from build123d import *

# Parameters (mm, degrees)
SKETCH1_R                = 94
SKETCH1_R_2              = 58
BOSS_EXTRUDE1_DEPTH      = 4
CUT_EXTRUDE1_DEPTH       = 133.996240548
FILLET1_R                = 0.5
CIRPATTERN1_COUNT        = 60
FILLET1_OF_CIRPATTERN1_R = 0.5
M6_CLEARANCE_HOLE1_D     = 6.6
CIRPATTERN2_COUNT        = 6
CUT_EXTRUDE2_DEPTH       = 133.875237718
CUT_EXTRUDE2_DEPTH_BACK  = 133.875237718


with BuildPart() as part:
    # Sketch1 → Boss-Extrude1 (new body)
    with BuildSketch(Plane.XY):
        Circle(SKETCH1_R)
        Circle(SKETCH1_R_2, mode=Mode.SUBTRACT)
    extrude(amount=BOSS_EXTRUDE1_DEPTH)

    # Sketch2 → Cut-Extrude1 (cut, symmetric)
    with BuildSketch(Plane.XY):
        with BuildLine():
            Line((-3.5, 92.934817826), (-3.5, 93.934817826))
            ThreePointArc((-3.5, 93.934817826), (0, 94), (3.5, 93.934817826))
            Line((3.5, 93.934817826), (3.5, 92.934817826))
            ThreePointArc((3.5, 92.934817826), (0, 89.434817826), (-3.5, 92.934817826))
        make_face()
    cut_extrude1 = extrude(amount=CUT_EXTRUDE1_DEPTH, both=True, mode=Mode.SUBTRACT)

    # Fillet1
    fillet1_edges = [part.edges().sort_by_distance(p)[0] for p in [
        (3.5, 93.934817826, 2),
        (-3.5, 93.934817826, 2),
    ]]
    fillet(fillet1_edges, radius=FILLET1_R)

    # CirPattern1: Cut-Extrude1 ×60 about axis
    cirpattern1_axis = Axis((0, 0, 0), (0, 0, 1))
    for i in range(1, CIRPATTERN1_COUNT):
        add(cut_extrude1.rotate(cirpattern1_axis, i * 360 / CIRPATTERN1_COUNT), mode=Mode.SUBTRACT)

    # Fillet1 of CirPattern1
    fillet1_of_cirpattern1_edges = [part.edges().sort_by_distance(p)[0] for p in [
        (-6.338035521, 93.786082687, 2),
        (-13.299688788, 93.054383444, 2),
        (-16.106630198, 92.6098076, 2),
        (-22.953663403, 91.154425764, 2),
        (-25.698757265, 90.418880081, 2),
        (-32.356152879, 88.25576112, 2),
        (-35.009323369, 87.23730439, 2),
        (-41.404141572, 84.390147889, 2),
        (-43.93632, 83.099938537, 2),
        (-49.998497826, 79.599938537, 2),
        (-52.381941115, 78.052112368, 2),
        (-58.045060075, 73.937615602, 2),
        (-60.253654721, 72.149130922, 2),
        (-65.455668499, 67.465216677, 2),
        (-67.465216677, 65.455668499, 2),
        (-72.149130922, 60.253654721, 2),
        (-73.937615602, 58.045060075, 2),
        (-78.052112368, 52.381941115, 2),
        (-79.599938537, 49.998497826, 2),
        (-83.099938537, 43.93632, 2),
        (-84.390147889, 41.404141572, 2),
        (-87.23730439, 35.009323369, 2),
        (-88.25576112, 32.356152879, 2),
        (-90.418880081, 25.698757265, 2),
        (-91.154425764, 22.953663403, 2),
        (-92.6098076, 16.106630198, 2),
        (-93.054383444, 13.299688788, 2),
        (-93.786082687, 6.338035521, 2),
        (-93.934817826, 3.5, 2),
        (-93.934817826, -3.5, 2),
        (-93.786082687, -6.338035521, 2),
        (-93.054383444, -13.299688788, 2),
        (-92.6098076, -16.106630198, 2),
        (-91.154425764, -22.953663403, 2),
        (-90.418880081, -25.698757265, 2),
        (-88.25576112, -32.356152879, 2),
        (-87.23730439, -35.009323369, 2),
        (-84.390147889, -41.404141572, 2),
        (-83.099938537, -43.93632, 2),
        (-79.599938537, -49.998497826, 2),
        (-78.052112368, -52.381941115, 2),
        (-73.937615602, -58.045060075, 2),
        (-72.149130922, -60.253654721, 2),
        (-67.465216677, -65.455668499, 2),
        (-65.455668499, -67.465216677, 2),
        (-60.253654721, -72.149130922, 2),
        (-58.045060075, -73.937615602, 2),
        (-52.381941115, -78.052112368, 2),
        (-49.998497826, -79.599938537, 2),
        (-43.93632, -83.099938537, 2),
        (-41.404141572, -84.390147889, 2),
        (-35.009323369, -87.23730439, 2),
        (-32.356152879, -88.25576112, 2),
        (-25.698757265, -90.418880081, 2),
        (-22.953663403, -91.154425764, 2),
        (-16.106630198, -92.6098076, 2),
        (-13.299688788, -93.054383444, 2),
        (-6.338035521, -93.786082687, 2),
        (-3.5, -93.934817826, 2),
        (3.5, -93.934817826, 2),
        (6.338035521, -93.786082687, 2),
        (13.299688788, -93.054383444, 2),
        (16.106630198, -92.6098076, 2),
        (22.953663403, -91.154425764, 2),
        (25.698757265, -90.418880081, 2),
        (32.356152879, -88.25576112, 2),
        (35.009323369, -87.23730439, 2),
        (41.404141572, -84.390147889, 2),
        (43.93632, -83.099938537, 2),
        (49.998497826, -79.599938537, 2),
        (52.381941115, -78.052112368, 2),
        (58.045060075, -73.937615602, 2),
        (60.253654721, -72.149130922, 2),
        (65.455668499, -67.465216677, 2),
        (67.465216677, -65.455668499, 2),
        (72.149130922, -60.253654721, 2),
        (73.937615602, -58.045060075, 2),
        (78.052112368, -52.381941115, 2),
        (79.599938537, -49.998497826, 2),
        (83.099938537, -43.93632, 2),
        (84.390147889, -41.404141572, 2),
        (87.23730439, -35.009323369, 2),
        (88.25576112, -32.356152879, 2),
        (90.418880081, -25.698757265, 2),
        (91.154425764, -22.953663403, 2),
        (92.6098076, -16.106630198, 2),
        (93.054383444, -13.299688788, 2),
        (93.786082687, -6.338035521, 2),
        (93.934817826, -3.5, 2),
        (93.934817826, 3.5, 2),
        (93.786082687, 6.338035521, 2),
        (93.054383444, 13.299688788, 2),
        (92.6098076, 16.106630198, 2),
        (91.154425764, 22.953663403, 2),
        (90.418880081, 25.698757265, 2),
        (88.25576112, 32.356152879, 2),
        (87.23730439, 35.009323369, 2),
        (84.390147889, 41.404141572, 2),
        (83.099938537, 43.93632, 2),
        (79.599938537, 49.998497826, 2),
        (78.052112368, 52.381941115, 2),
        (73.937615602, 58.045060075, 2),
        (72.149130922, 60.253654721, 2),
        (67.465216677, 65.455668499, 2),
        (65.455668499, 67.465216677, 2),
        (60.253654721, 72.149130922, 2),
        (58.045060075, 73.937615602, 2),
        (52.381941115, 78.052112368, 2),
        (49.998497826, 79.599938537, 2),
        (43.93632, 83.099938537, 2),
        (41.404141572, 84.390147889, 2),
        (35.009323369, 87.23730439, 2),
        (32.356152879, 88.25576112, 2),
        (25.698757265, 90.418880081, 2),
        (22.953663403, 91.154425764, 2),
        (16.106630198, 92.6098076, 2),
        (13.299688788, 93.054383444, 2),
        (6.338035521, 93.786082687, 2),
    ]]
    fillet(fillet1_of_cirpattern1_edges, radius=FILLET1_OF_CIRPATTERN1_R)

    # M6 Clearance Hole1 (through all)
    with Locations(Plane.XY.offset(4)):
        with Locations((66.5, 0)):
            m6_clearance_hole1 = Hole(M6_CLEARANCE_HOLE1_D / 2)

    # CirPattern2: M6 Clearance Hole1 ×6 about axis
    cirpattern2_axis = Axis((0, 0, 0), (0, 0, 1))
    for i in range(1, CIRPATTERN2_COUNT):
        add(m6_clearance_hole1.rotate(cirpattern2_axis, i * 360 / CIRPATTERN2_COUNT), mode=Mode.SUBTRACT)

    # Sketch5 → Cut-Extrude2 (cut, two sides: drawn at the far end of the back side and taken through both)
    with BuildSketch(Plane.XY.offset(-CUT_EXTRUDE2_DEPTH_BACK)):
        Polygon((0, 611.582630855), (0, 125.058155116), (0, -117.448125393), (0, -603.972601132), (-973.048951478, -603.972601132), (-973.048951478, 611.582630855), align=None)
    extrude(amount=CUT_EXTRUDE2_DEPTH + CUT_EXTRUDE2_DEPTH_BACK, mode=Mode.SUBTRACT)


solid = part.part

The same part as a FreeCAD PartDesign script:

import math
import FreeCAD as App
import Part
import Sketcher
from FreeCAD import Vector
Q = App.Units.Quantity


def edges_at(feature, points):
    """Names of the edges that pass closest to the given points."""
    edges = feature.Shape.Edges
    near = lambda p: min(range(len(edges)), key=lambda i: edges[i].distToShape(Part.Vertex(*p))[0])
    return sorted({f"Edge{near(p) + 1}" for p in points})

doc = App.newDocument("Part")
body = doc.addObject("PartDesign::Body", "Body")

# Sketch on XY plane
sketch1 = body.newObject("Sketcher::SketchObject", "Sketch")
sketch1.AttachmentSupport = (doc.getObject("XY_Plane"), [""])
sketch1.MapMode = "FlatFace"
sketch1.addGeometry([
    Part.Circle(Vector(0, 0, 0), Vector(0, 0, 1), 94),
    Part.Circle(Vector(0, 0, 0), Vector(0, 0, 1), 58),
], False)
sketch1.addConstraint([
    Sketcher.Constraint("Coincident", 0, 3, -1, 1),
    Sketcher.Constraint("Coincident", 1, 3, -1, 1),
    Sketcher.Constraint("Diameter", 0, Q("188 mm")),
    Sketcher.Constraint("Diameter", 1, Q("116 mm")),
])
pad1 = body.newObject("PartDesign::Pad", "Pad")
pad1.Profile = sketch1
pad1.Length = 4

# Sketch on XY plane
sketch2 = body.newObject("Sketcher::SketchObject", "Sketch001")
sketch2.AttachmentSupport = (doc.getObject("XY_Plane"), [""])
sketch2.MapMode = "FlatFace"
sketch2.addGeometry([
    Part.LineSegment(Vector(-3.5, 93.934818, 0), Vector(-3.5, 92.934818, 0)),
    Part.ArcOfCircle(Part.Circle(Vector(0, 92.934818, 0), Vector(0, 0, 1), 3.5), math.radians(180), math.radians(360)),
    Part.LineSegment(Vector(3.5, 92.934818, 0), Vector(3.5, 93.934818, 0)),
    Part.ArcOfCircle(Part.Circle(Vector(0, 0, 0), Vector(0, 0, 1), 94), math.radians(87.866153), math.radians(92.133847)),
], False)
sketch2.addConstraint([
    Sketcher.Constraint("Tangent", 0, 2, 1, 1),
    Sketcher.Constraint("Tangent", 1, 2, 2, 1),
    Sketcher.Constraint("Coincident", 2, 2, 3, 1),
    Sketcher.Constraint("Coincident", 3, 2, 0, 1),
    Sketcher.Constraint("Vertical", 0),
    Sketcher.Constraint("Vertical", 2),
    Sketcher.Constraint("Coincident", 3, 3, -1, 1),
    Sketcher.Constraint("PointOnObject", 1, 3, -2),
    Sketcher.Constraint("Radius", 3, Q("94 mm")),
    Sketcher.Constraint("Radius", 1, Q("3.5 mm")),
    Sketcher.Constraint("DistanceY", 0, 2, 0, 1, Q("1 mm")),
])
pocket1 = body.newObject("PartDesign::Pocket", "Pocket")
pocket1.Profile = sketch2
pocket1.Length = 267.992481
pocket1.Midplane = True
doc.recompute()

fillet = body.newObject("PartDesign::Fillet", "Fillet")
fillet.Base = (pocket1, edges_at(pocket1, [(3.5, 93.935, 2), (-3.5, 93.935, 2)]))
fillet.Radius = 0.5
doc.recompute()

polarpattern = body.newObject("PartDesign::PolarPattern", "PolarPattern")
polarpattern.Originals = [pocket1]
polarpattern.Axis = (doc.getObject("Z_Axis"), [""])
polarpattern.Angle = 360
polarpattern.Occurrences = 60
body.Tip = polarpattern
doc.recompute()

fillet2 = body.newObject("PartDesign::Fillet", "Fillet001")
fillet2.Base = (polarpattern, edges_at(polarpattern, [
    (-6.338, 93.786, 2),
    (-13.3, 93.054, 2),
    (-16.107, 92.61, 2),
    (-22.954, 91.154, 2),
    (-25.699, 90.419, 2),
    (-32.356, 88.256, 2),
    (-35.009, 87.237, 2),
    (-41.404, 84.39, 2),
    (-43.936, 83.1, 2),
    (-49.998, 79.6, 2),
    (-52.382, 78.052, 2),
    (-58.045, 73.938, 2),
    (-60.254, 72.149, 2),
    (-65.456, 67.465, 2),
    (-67.465, 65.456, 2),
    (-72.149, 60.254, 2),
    (-73.938, 58.045, 2),
    (-78.052, 52.382, 2),
    (-79.6, 49.998, 2),
    (-83.1, 43.936, 2),
    (-84.39, 41.404, 2),
    (-87.237, 35.009, 2),
    (-88.256, 32.356, 2),
    (-90.419, 25.699, 2),
    (-91.154, 22.954, 2),
    (-92.61, 16.107, 2),
    (-93.054, 13.3, 2),
    (-93.786, 6.338, 2),
    (-93.935, 3.5, 2),
    (-93.935, -3.5, 2),
    (-93.786, -6.338, 2),
    (-93.054, -13.3, 2),
    (-92.61, -16.107, 2),
    (-91.154, -22.954, 2),
    (-90.419, -25.699, 2),
    (-88.256, -32.356, 2),
    (-87.237, -35.009, 2),
    (-84.39, -41.404, 2),
    (-83.1, -43.936, 2),
    (-79.6, -49.998, 2),
    (-78.052, -52.382, 2),
    (-73.938, -58.045, 2),
    (-72.149, -60.254, 2),
    (-67.465, -65.456, 2),
    (-65.456, -67.465, 2),
    (-60.254, -72.149, 2),
    (-58.045, -73.938, 2),
    (-52.382, -78.052, 2),
    (-49.998, -79.6, 2),
    (-43.936, -83.1, 2),
    (-41.404, -84.39, 2),
    (-35.009, -87.237, 2),
    (-32.356, -88.256, 2),
    (-25.699, -90.419, 2),
    (-22.954, -91.154, 2),
    (-16.107, -92.61, 2),
    (-13.3, -93.054, 2),
    (-6.338, -93.786, 2),
    (-3.5, -93.935, 2),
    (3.5, -93.935, 2),
    (6.338, -93.786, 2),
    (13.3, -93.054, 2),
    (16.107, -92.61, 2),
    (22.954, -91.154, 2),
    (25.699, -90.419, 2),
    (32.356, -88.256, 2),
    (35.009, -87.237, 2),
    (41.404, -84.39, 2),
    (43.936, -83.1, 2),
    (49.998, -79.6, 2),
    (52.382, -78.052, 2),
    (58.045, -73.938, 2),
    (60.254, -72.149, 2),
    (65.456, -67.465, 2),
    (67.465, -65.456, 2),
    (72.149, -60.254, 2),
    (73.938, -58.045, 2),
    (78.052, -52.382, 2),
    (79.6, -49.998, 2),
    (83.1, -43.936, 2),
    (84.39, -41.404, 2),
    (87.237, -35.009, 2),
    (88.256, -32.356, 2),
    (90.419, -25.699, 2),
    (91.154, -22.954, 2),
    (92.61, -16.107, 2),
    (93.054, -13.3, 2),
    (93.786, -6.338, 2),
    (93.935, -3.5, 2),
    (93.935, 3.5, 2),
    (93.786, 6.338, 2),
    (93.054, 13.3, 2),
    (92.61, 16.107, 2),
    (91.154, 22.954, 2),
    (90.419, 25.699, 2),
    (88.256, 32.356, 2),
    (87.237, 35.009, 2),
    (84.39, 41.404, 2),
    (83.1, 43.936, 2),
    (79.6, 49.998, 2),
    (78.052, 52.382, 2),
    (73.938, 58.045, 2),
    (72.149, 60.254, 2),
    (67.465, 65.456, 2),
    (65.456, 67.465, 2),
    (60.254, 72.149, 2),
    (58.045, 73.938, 2),
    (52.382, 78.052, 2),
    (49.998, 79.6, 2),
    (43.936, 83.1, 2),
    (41.404, 84.39, 2),
    (35.009, 87.237, 2),
    (32.356, 88.256, 2),
    (25.699, 90.419, 2),
    (22.954, 91.154, 2),
    (16.107, 92.61, 2),
    (13.3, 93.054, 2),
    (6.338, 93.786, 2),
]))
fillet2.Radius = 0.5

# Sketch on XY plane
sketch3 = body.newObject("Sketcher::SketchObject", "Sketch002")
sketch3.AttachmentSupport = (doc.getObject("XY_Plane"), [""])
sketch3.MapMode = "FlatFace"
sketch3.AttachmentOffset = App.Placement(Vector(0, 0, 4), App.Rotation())
sketch3.addGeometry(Part.Circle(Vector(66.5, 0, 0), Vector(0, 0, 1), 3.3), False)
sketch3.addConstraint([
    Sketcher.Constraint("PointOnObject", 0, 3, -1),
    Sketcher.Constraint("Diameter", 0, Q("6.6 mm")),
    Sketcher.Constraint("DistanceX", -1, 1, 0, 3, Q("66.5 mm")),
])
doc.recompute()
hole = body.newObject("PartDesign::Hole", "Hole")
hole.Profile = sketch3
hole.ThreadType = "None"
hole.Diameter = 6.6
hole.DepthType = "ThroughAll"
doc.recompute()

polarpattern2 = body.newObject("PartDesign::PolarPattern", "PolarPattern001")
polarpattern2.Originals = [hole]
polarpattern2.Axis = (doc.getObject("Z_Axis"), [""])
polarpattern2.Angle = 360
polarpattern2.Occurrences = 6
body.Tip = polarpattern2

# Sketch on XY plane
sketch4 = body.newObject("Sketcher::SketchObject", "Sketch003")
sketch4.AttachmentSupport = (doc.getObject("XY_Plane"), [""])
sketch4.MapMode = "FlatFace"
sketch4.addGeometry([
    Part.LineSegment(Vector(0, -603.972601, 0), Vector(0, 611.582631, 0)),
    Part.LineSegment(Vector(0, 611.582631, 0), Vector(-973.048951, 611.582631, 0)),
    Part.LineSegment(Vector(-973.048951, 611.582631, 0), Vector(-973.048951, -603.972601, 0)),
    Part.LineSegment(Vector(-973.048951, -603.972601, 0), Vector(0, -603.972601, 0)),
], False)
sketch4.addConstraint([
    Sketcher.Constraint("Coincident", 0, 2, 1, 1),
    Sketcher.Constraint("Coincident", 1, 2, 2, 1),
    Sketcher.Constraint("Coincident", 2, 2, 3, 1),
    Sketcher.Constraint("Coincident", 3, 2, 0, 1),
    Sketcher.Constraint("Vertical", 0),
    Sketcher.Constraint("Horizontal", 1),
    Sketcher.Constraint("Vertical", 2),
    Sketcher.Constraint("Horizontal", 3),
    Sketcher.Constraint("PointOnObject", 0, 2, -2),
    Sketcher.Constraint("DistanceX", 1, 2, 1, 1, Q("973.048951 mm")),
    Sketcher.Constraint("DistanceY", 0, 1, 0, 2, Q("1215.555232 mm")),
    Sketcher.Constraint("DistanceY", 2, 2, -1, 1, Q("603.972601 mm")),
])
pocket2 = body.newObject("PartDesign::Pocket", "Pocket001")
pocket2.Profile = sketch4
pocket2.Type = "ThroughAll"
pocket2.Midplane = True

doc.recompute()
